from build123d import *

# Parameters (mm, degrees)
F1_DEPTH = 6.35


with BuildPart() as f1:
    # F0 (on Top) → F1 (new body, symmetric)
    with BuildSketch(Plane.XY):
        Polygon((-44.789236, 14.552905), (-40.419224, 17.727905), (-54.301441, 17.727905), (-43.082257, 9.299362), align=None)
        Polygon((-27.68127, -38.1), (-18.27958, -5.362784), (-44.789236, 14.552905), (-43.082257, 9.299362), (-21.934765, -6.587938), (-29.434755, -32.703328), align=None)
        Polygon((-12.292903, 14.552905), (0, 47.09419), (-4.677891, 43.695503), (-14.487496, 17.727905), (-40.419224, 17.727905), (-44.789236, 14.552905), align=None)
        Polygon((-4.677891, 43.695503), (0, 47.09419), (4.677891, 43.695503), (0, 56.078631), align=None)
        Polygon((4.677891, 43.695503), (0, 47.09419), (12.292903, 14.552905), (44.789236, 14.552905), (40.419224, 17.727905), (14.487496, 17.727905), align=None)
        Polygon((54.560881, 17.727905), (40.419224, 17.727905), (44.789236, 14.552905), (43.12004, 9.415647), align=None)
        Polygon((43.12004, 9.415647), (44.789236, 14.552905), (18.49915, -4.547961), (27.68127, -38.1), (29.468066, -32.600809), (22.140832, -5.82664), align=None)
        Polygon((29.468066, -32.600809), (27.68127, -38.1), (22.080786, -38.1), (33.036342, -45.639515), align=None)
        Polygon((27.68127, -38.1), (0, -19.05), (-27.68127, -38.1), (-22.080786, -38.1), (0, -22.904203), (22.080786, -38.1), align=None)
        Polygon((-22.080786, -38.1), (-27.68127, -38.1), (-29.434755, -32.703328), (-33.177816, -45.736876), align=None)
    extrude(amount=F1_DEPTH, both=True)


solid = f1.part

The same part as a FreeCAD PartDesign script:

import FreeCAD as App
import Part
import Sketcher
from FreeCAD import Vector
Q = App.Units.Quantity


def add_polygon(sketch, points):
    """Adds a closed chain of lines whose ends are joined by coincident constraints."""
    first, n = sketch.GeometryCount, len(points)
    for a, b in zip(points, points[1:] + points[:1]):
        sketch.addGeometry(Part.LineSegment(App.Vector(*a, 0), App.Vector(*b, 0)), False)
    for i in range(n):
        sketch.addConstraint(Sketcher.Constraint("Coincident", first + i, 2, first + (i + 1) % n, 1))

doc = App.newDocument("Part")
body = doc.addObject("PartDesign::Body", "Body")

# Sketch on XY plane
sketch1 = body.newObject("Sketcher::SketchObject", "Sketch")
sketch1.AttachmentSupport = (doc.getObject("XY_Plane"), [""])
sketch1.MapMode = "FlatFace"
add_polygon(sketch1, [(-21.934765, -6.587938), (-29.434755, -32.703328), (-33.177816, -45.736876), (-22.080786, -38.1), (0, -22.904203), (22.080786, -38.1), (33.036342, -45.639515), (29.468066, -32.600809), (22.140832, -5.82664), (43.12004, 9.415647), (54.560881, 17.727905), (14.487496, 17.727905), (4.677891, 43.695503), (0, 56.078631), (-4.677891, 43.695503), (-14.487496, 17.727905), (-54.301441, 17.727905), (-43.082257, 9.299362)])  # lines 0-17
add_polygon(sketch1, [(0, -19.05), (-27.68127, -38.1), (-18.27958, -5.362784), (-44.789236, 14.552905), (-12.292903, 14.552905), (0, 47.09419), (12.292903, 14.552905), (44.789236, 14.552905), (18.49915, -4.547961), (27.68127, -38.1)])  # lines 18-27
sketch1.addConstraint(Sketcher.Constraint("Horizontal", 10))
sketch1.addConstraint(Sketcher.Constraint("Horizontal", 15))
sketch1.addConstraint(Sketcher.Constraint("Horizontal", 21))
sketch1.addConstraint(Sketcher.Constraint("Horizontal", 24))
sketch1.addConstraint(Sketcher.Constraint("PointOnObject", 3, 2, -2))
sketch1.addConstraint(Sketcher.Constraint("PointOnObject", 12, 2, -2))
sketch1.addConstraint(Sketcher.Constraint("PointOnObject", 22, 2, -2))
sketch1.addConstraint(Sketcher.Constraint("PointOnObject", 27, 2, -2))
sketch1.addConstraint(Sketcher.Constraint("DistanceY", 2, 2, -1, 1, Q("1.5 in")))
sketch1.addConstraint(Sketcher.Constraint("DistanceY", 4, 2, -1, 1, Q("1.5 in")))
sketch1.addConstraint(Sketcher.Constraint("DistanceY", 18, 2, -1, 1, Q("1.5 in")))
sketch1.addConstraint(Sketcher.Constraint("DistanceY", 26, 2, -1, 1, Q("1.5 in")))
sketch1.addConstraint(Sketcher.Constraint("DistanceY", 27, 2, -1, 1, Q("0.75 in")))
sketch1.addConstraint(Sketcher.Constraint("DistanceY", 20, 2, 15, 2, Q("0.125 in")))
sketch1.addConstraint(Sketcher.Constraint("DistanceY", 21, 2, 10, 2, Q("0.125 in")))
sketch1.addConstraint(Sketcher.Constraint("DistanceY", 23, 2, 10, 2, Q("0.125 in")))
sketch1.addConstraint(Sketcher.Constraint("DistanceX", 15, 2, 16, 2, Q("0.4417002 in")))
sketch1.addConstraint(Sketcher.Constraint("DistanceX", 1, 2, 4, 2, 55.258602))
sketch1.addConstraint(Sketcher.Constraint("DistanceX", 5, 2, 8, 2, 10.083698))
sketch1.addConstraint(Sketcher.Constraint("DistanceY", 10, 2, 11, 2, 25.967598))
sketch1.addConstraint(Sketcher.Constraint("DistanceY", 10, 2, 13, 2, 25.967598))
sketch1.addConstraint(Sketcher.Constraint("DistanceX", 16, 2, 0, 2, 13.647502))
sketch1.addConstraint(Sketcher.Constraint("DistanceY", 17, 2, 16, 2, 15.8873))
sketch1.addConstraint(Sketcher.Constraint("DistanceX", 21, 2, 10, 2, 26.780399))
sketch1.addConstraint(Sketcher.Constraint("DistanceX", 14, 2, 23, 2, 26.780399))
sketch1.addConstraint(Sketcher.Constraint("Distance", 1, 13.560379))
sketch1.addConstraint(Sketcher.Constraint("Distance", 2, 13.47093))
sketch1.addConstraint(Sketcher.Constraint("Distance", 5, 13.299191))
sketch1.addConstraint(Sketcher.Constraint("Distance", 12, 13.23724))
sketch1.addConstraint(Sketcher.Constraint("Distance", 13, 13.23724))
sketch1.addConstraint(Sketcher.Constraint("Distance", 19, 34.060492))
sketch1.addConstraint(Sketcher.Constraint("Distance", 20, 33.157149))
sketch1.addConstraint(Sketcher.Constraint("DistanceX", 10, 2, 10, 1, 40.073385))
sketch1.addConstraint(Sketcher.Constraint("DistanceX", 15, 2, 15, 1, 39.813945))
sketch1.addConstraint(Sketcher.Constraint("DistanceX", 21, 1, 21, 2, 32.496333))
sketch1.addConstraint(Sketcher.Constraint("DistanceX", 24, 1, 24, 2, 32.496333))
sketch1.addConstraint(Sketcher.Constraint("DistanceX", -1, 1, 5, 2, 33.036342))
sketch1.addConstraint(Sketcher.Constraint("DistanceY", 6, 2, -1, 1, 32.600809))
sketch1.addConstraint(Sketcher.Constraint("DistanceX", -1, 1, 7, 2, 22.140832))
sketch1.addConstraint(Sketcher.Constraint("DistanceY", 7, 2, -1, 1, 5.82664))
sketch1.addConstraint(Sketcher.Constraint("DistanceX", -1, 1, 9, 2, 54.560881))
sketch1.addConstraint(Sketcher.Constraint("DistanceX", -1, 1, 11, 2, 4.677891))
sketch1.addConstraint(Sketcher.Constraint("DistanceY", -1, 1, 12, 2, 56.078631))
sketch1.addConstraint(Sketcher.Constraint("DistanceX", 15, 2, -1, 1, 54.301441))
sketch1.addConstraint(Sketcher.Constraint("DistanceY", 17, 2, -1, 1, 6.587938))
sketch1.addConstraint(Sketcher.Constraint("DistanceX", 18, 2, -1, 1, 27.68127))
sketch1.addConstraint(Sketcher.Constraint("DistanceY", -1, 1, 22, 2, 47.09419))
sketch1.addConstraint(Sketcher.Constraint("DistanceX", -1, 1, 25, 2, 18.49915))
sketch1.addConstraint(Sketcher.Constraint("DistanceY", 25, 2, -1, 1, 4.547961))
sketch1.addConstraint(Sketcher.Constraint("DistanceX", -1, 1, 26, 2, 27.68127))
sketch1.addConstraint(Sketcher.Constraint("DistanceX", 1, 2, 0, 2, 3.743061))
sketch1.addConstraint(Sketcher.Constraint("DistanceX", 0, 2, 2, 2, 7.353969))
sketch1.addConstraint(Sketcher.Constraint("DistanceX", 4, 2, 6, 2, 7.38728))
sketch1.addConstraint(Sketcher.Constraint("DistanceY", 3, 2, 8, 2, 32.31985))
sketch1.addConstraint(Sketcher.Constraint("DistanceY", 3, 2, 10, 2, 40.632108))
sketch1.addConstraint(Sketcher.Constraint("DistanceX", 17, 2, 14, 2, 7.447269))
pad1 = body.newObject("PartDesign::Pad", "Pad")
pad1.Profile = sketch1
pad1.Length = Q("0.5 in")
pad1.Midplane = True

doc.recompute()
